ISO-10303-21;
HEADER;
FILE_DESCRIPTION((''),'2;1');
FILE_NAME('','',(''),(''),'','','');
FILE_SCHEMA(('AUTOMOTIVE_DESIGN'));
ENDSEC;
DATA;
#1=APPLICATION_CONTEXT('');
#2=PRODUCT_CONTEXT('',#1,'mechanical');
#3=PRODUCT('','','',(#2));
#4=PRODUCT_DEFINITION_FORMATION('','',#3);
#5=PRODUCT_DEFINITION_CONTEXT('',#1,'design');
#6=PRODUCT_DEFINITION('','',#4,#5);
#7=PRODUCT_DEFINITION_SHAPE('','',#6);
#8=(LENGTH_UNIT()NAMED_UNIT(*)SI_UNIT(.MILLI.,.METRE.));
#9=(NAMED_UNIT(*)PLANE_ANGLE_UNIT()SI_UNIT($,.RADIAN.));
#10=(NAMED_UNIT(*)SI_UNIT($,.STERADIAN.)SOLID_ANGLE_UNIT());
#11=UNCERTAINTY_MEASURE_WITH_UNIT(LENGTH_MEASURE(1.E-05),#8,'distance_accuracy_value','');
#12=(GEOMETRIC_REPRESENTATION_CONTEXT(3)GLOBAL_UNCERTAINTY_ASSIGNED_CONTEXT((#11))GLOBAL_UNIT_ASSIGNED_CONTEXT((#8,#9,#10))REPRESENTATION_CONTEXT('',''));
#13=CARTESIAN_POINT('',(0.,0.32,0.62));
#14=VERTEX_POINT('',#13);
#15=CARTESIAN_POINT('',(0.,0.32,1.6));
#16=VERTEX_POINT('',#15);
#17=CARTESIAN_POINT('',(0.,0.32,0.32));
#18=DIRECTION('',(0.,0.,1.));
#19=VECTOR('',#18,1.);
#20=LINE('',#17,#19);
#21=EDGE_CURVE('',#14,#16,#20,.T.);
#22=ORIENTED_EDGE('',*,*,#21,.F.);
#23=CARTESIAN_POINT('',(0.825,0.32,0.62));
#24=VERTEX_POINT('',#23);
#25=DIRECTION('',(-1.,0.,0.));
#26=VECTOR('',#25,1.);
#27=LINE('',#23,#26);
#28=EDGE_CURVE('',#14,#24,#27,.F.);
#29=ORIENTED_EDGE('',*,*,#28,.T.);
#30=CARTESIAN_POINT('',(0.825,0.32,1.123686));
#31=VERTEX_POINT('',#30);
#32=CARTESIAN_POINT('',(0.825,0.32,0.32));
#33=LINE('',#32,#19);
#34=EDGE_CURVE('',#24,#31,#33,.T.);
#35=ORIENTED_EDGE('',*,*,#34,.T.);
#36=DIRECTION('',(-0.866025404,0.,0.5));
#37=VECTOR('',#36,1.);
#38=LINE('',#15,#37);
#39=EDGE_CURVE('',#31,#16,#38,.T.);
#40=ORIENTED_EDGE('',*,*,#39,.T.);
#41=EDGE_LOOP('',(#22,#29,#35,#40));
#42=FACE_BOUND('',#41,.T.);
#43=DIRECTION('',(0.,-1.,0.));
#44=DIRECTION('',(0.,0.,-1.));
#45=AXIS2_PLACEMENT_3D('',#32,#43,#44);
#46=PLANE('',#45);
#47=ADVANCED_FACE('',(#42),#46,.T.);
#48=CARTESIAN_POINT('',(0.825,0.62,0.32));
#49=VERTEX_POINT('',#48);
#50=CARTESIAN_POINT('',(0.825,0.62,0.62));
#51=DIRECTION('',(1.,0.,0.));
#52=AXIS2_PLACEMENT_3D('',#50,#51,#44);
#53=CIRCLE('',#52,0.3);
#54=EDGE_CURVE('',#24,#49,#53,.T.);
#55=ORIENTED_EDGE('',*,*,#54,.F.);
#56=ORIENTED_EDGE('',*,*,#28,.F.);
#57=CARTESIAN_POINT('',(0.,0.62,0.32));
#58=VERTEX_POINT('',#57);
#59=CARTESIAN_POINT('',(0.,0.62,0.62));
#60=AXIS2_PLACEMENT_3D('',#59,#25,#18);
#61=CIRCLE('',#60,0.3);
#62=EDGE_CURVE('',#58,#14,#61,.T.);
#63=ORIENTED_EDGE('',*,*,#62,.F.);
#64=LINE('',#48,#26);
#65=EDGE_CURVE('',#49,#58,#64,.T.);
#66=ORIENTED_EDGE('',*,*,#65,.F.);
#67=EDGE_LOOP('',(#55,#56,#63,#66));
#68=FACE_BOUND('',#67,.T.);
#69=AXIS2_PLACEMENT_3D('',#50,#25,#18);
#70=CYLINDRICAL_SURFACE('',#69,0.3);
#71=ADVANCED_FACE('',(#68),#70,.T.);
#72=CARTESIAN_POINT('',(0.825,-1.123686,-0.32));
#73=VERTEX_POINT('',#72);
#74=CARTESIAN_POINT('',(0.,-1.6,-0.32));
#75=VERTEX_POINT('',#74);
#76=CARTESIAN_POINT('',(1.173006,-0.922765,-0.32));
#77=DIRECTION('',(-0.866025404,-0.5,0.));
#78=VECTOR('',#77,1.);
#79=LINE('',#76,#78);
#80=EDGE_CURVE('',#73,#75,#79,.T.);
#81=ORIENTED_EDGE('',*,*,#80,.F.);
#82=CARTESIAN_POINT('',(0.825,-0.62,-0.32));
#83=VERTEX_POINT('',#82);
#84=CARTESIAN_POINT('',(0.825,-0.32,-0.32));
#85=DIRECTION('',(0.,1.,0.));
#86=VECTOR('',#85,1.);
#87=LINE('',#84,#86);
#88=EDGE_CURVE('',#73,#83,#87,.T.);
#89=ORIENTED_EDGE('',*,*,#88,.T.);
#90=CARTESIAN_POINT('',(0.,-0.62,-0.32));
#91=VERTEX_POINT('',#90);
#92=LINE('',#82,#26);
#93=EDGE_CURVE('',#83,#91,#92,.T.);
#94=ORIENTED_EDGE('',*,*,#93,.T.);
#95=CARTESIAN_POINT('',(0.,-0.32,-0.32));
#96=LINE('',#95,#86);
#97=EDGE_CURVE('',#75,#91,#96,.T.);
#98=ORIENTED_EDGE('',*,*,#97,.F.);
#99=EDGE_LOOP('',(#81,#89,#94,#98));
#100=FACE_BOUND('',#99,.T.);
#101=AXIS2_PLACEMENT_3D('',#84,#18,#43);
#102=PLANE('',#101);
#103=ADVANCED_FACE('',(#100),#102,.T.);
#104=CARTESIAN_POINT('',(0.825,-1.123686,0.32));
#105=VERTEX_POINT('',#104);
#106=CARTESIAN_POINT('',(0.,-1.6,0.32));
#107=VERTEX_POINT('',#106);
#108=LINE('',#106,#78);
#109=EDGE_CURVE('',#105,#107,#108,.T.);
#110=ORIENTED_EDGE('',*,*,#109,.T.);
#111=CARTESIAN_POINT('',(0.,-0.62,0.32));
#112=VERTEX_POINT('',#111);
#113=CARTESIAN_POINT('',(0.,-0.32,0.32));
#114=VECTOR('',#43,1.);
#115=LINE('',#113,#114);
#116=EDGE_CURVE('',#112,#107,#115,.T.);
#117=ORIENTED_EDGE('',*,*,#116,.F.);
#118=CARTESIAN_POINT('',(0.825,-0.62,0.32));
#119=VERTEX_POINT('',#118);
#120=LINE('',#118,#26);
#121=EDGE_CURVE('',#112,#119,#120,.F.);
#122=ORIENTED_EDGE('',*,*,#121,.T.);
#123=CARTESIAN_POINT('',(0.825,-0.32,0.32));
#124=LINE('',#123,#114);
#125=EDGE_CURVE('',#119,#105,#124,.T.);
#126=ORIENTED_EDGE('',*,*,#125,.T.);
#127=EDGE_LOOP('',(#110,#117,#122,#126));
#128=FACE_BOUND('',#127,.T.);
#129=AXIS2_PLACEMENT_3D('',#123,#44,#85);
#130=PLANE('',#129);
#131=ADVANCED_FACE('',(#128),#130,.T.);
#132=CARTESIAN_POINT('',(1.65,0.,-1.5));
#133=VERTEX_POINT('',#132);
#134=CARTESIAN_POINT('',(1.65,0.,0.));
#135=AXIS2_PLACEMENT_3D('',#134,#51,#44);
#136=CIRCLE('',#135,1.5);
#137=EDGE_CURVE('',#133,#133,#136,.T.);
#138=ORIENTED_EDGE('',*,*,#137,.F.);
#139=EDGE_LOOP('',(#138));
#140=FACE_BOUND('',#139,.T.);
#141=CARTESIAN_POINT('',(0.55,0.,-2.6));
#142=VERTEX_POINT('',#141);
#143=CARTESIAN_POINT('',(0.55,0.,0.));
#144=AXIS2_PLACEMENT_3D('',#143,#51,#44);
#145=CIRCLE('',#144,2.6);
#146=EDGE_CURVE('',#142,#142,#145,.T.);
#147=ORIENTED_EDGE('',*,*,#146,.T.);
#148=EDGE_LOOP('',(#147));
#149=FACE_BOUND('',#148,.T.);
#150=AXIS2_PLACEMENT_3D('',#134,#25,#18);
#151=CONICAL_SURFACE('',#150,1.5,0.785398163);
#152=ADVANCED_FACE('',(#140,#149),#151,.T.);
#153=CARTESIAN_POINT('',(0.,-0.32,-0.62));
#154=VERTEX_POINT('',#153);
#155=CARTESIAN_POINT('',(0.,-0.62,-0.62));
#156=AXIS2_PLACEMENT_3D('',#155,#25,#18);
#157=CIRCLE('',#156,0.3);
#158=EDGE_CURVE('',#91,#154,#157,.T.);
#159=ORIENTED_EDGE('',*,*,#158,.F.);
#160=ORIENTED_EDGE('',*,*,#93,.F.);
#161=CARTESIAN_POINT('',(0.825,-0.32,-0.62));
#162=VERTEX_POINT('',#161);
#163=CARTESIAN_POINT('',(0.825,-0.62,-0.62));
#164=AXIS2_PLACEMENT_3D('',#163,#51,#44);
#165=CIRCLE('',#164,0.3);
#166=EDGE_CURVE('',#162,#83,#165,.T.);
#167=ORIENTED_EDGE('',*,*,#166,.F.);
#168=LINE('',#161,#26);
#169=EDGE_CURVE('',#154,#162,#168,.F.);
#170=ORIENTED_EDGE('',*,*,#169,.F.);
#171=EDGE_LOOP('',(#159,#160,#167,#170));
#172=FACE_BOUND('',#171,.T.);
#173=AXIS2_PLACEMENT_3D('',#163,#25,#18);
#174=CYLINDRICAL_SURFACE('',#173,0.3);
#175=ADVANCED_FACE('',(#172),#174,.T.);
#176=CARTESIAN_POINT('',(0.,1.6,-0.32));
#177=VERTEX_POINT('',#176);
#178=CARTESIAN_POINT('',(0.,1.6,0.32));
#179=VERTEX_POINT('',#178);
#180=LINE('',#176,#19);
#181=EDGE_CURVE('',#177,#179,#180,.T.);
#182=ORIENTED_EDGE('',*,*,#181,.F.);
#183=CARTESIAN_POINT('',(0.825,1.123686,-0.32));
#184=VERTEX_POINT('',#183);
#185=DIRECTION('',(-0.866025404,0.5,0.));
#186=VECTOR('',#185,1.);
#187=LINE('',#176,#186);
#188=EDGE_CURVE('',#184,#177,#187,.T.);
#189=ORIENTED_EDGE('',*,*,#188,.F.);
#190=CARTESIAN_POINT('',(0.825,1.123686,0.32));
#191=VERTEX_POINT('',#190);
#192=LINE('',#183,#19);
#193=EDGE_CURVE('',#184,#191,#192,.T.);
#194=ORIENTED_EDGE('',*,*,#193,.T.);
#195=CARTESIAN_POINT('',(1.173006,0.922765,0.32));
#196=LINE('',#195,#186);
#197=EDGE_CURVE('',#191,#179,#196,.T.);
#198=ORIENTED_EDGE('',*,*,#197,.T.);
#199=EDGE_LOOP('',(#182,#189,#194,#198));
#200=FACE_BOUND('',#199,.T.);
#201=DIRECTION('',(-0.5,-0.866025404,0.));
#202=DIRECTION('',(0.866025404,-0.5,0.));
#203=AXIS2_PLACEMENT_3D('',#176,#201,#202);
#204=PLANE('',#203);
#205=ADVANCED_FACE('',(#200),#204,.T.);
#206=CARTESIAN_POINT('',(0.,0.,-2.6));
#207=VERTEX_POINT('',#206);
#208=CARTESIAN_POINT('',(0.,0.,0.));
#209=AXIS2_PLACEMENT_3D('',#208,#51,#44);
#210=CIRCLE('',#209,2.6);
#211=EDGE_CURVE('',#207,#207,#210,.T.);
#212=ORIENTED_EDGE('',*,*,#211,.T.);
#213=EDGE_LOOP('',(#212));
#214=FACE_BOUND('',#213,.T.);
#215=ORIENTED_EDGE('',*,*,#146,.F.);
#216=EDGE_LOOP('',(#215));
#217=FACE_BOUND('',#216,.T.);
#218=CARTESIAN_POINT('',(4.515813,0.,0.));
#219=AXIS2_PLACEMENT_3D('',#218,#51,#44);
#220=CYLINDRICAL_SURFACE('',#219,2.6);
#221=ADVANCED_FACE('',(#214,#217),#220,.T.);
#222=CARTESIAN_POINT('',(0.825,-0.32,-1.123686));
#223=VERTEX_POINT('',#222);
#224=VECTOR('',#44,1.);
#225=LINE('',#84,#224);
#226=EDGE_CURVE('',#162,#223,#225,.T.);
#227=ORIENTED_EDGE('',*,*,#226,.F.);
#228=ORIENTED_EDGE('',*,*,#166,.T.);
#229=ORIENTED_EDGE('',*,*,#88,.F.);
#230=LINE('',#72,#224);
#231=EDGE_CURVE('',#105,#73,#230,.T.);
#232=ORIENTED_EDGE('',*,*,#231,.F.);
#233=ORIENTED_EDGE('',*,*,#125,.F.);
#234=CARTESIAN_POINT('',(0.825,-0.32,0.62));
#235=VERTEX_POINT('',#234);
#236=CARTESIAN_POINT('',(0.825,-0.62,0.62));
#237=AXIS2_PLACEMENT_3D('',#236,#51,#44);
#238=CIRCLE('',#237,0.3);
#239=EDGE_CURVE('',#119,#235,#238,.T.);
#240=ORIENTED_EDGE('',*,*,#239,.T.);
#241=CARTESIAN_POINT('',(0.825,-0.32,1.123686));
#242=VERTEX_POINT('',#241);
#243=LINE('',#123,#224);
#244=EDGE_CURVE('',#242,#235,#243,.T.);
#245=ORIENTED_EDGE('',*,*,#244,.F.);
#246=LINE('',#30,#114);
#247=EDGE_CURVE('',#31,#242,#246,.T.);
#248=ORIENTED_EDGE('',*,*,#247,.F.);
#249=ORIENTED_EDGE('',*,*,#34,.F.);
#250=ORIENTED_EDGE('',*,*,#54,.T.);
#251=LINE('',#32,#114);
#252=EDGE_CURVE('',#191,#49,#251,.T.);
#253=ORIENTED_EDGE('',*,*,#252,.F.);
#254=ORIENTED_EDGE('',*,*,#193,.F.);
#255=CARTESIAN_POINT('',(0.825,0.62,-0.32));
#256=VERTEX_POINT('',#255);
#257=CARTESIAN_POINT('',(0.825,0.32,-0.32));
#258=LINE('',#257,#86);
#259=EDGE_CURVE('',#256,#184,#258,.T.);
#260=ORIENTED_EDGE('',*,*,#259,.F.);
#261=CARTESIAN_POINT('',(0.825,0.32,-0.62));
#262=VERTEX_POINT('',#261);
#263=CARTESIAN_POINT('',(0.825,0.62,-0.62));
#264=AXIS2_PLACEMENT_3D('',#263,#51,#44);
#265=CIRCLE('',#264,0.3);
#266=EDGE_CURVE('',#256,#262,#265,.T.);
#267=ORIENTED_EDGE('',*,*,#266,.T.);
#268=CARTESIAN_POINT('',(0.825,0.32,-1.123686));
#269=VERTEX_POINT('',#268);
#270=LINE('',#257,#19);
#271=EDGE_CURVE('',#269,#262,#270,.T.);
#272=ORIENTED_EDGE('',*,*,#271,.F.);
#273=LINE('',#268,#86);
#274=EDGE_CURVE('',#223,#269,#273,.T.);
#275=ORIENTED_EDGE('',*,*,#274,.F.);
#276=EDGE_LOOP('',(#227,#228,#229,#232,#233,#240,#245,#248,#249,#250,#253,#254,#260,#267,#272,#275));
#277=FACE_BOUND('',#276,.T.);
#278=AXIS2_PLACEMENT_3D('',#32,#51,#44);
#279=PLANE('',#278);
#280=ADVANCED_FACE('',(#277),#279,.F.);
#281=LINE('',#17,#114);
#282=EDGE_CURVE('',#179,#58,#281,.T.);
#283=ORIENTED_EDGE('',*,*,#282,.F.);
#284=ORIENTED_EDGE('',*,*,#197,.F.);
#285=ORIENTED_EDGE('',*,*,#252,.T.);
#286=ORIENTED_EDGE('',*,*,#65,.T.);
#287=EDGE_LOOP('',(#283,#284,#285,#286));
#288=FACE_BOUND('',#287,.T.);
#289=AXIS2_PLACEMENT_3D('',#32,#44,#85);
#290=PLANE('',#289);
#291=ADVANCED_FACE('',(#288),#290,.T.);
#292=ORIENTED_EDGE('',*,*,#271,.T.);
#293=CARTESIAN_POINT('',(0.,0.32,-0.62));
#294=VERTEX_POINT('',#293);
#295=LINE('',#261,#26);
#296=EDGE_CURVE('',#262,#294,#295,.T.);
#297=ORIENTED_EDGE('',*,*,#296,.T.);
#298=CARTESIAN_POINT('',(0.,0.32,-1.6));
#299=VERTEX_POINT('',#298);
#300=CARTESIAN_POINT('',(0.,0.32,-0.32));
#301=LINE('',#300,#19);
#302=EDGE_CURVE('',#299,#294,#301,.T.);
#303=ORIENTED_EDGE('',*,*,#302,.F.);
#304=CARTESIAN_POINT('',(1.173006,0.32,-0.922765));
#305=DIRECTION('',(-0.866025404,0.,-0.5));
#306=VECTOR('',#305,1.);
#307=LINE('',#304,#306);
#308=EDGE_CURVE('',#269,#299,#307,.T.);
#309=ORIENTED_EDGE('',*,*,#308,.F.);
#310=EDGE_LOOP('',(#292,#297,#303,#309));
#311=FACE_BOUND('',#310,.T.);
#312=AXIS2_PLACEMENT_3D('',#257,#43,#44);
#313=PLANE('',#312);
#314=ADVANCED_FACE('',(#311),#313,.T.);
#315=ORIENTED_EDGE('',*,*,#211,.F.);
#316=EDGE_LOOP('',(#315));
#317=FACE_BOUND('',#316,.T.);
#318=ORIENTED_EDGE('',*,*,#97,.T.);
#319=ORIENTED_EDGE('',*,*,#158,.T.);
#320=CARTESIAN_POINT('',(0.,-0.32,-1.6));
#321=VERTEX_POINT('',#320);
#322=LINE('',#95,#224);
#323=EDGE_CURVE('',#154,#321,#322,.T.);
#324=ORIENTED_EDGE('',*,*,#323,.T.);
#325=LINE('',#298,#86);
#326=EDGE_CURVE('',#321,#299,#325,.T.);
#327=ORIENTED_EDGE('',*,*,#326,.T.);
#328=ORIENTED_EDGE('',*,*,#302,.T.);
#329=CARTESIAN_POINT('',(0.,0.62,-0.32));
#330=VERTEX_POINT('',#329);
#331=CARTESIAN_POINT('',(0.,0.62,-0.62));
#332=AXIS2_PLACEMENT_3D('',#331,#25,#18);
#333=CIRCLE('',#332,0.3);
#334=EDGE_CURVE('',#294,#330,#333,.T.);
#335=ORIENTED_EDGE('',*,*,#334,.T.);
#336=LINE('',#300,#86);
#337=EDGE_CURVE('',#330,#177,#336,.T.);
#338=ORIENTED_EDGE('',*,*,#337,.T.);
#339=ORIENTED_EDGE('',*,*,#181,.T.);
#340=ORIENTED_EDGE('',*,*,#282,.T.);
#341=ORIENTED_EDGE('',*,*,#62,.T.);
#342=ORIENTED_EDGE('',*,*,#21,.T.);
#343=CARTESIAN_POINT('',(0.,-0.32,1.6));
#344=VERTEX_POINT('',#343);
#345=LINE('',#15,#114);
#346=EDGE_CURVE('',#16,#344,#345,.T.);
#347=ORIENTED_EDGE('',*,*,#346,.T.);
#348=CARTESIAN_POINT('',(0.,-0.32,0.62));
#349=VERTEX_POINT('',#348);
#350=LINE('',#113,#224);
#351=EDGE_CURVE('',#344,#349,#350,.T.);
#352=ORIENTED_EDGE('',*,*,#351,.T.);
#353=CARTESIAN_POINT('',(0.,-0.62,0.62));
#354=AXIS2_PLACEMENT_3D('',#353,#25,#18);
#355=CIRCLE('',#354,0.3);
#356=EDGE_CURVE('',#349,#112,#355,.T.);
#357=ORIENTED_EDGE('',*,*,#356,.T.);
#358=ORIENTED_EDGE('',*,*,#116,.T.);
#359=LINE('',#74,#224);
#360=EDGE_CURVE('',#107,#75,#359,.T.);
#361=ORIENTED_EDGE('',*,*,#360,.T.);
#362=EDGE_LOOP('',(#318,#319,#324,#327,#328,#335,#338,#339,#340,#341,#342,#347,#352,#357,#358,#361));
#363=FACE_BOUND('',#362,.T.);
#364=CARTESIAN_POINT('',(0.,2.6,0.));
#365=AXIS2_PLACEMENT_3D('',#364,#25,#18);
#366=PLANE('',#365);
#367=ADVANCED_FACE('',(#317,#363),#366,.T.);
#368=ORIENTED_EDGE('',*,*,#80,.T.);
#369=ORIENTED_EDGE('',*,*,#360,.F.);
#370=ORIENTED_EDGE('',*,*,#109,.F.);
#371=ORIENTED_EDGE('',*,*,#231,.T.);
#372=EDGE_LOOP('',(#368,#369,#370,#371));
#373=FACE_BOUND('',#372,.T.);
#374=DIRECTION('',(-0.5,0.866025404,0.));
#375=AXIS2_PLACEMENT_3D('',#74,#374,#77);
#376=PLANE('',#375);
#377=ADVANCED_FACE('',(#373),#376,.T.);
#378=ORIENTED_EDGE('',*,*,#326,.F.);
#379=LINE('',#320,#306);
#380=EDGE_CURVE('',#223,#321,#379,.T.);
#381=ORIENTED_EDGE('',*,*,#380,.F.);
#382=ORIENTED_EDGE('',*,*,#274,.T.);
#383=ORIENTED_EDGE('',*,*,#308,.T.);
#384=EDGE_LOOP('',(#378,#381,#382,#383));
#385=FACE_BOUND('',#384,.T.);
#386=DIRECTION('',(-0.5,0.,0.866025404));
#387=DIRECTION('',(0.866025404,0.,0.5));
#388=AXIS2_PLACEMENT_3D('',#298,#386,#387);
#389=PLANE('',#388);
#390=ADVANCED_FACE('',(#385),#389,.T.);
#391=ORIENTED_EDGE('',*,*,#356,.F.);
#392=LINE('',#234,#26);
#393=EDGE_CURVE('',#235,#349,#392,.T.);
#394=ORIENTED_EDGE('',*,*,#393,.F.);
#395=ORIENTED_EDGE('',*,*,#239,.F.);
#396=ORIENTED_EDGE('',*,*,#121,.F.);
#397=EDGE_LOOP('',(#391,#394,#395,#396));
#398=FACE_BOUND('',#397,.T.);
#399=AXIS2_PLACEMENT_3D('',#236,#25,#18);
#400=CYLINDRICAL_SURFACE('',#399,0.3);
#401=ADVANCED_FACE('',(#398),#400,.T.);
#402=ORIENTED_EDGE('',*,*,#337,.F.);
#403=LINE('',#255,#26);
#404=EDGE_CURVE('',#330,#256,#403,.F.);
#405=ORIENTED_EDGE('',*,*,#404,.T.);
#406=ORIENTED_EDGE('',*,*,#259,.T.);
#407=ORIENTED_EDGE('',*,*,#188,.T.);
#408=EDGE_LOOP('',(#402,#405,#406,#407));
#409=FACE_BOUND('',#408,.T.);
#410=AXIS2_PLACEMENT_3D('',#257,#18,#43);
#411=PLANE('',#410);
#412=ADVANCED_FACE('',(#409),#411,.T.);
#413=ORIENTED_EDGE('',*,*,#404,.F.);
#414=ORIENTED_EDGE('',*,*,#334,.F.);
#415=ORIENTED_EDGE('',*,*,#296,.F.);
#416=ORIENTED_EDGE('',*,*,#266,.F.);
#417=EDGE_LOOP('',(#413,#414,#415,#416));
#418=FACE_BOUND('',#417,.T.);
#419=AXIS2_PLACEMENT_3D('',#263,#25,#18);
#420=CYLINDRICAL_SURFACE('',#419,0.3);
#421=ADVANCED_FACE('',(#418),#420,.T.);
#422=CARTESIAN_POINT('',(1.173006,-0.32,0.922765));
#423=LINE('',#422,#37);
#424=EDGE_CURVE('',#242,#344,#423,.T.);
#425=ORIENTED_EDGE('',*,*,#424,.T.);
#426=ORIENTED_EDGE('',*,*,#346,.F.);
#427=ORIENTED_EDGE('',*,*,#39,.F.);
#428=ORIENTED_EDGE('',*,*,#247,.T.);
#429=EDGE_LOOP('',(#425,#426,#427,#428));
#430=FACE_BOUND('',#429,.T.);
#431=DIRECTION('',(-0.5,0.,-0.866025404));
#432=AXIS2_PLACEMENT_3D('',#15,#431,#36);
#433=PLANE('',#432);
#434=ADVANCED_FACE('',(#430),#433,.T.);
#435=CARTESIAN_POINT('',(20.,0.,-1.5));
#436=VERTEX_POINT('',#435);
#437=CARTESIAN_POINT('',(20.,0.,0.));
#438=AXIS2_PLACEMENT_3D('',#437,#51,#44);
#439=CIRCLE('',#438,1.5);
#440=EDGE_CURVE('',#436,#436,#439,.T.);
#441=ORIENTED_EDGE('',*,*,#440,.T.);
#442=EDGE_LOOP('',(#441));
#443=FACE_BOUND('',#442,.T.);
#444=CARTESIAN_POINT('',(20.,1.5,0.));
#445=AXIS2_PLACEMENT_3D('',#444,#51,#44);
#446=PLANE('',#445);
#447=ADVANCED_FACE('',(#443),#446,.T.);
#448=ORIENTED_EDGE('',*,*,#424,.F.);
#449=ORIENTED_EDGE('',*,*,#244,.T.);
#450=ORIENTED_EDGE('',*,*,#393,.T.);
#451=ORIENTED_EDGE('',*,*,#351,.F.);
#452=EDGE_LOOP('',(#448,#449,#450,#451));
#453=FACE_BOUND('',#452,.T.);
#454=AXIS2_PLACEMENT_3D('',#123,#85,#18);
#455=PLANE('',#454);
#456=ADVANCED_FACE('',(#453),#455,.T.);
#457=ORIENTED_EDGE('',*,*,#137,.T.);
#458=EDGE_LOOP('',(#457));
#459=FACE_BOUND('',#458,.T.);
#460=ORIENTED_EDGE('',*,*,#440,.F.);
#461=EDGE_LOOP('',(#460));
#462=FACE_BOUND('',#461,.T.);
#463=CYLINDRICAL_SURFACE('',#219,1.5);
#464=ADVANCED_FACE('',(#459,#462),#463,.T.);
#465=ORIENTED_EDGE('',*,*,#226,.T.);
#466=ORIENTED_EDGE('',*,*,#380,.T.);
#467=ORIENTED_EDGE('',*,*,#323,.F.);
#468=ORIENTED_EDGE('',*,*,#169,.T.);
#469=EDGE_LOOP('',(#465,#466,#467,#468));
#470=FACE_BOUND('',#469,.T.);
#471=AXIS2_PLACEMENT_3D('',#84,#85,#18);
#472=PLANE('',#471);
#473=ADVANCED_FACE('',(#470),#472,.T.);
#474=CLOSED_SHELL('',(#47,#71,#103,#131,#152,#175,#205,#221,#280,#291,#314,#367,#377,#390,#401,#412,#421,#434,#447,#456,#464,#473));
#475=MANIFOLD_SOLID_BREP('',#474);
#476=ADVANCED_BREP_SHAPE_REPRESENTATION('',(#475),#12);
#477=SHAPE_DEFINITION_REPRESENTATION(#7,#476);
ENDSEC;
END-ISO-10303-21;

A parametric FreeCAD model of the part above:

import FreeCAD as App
import Part
import Sketcher
from FreeCAD import Vector
Q = App.Units.Quantity


def edges_at(feature, points):
    """Names of the edges that pass closest to the given points."""
    edges = feature.Shape.Edges
    near = lambda p: min(range(len(edges)), key=lambda i: edges[i].distToShape(Part.Vertex(*p))[0])
    return sorted({f"Edge{near(p) + 1}" for p in points})


def faces_at(feature, points):
    """Names of the faces that lie closest to the given points."""
    faces = feature.Shape.Faces
    near = lambda p: min(range(len(faces)), key=lambda i: faces[i].distToShape(Part.Vertex(*p))[0])
    return sorted({f"Face{near(p) + 1}" for p in points})


def add_polygon(sketch, points):
    """Adds a closed chain of lines whose ends are joined by coincident constraints."""
    first, n = sketch.GeometryCount, len(points)
    for a, b in zip(points, points[1:] + points[:1]):
        sketch.addGeometry(Part.LineSegment(App.Vector(*a, 0), App.Vector(*b, 0)), False)
    for i in range(n):
        sketch.addConstraint(Sketcher.Constraint("Coincident", first + i, 2, first + (i + 1) % n, 1))

doc = App.newDocument("Part")
body = doc.addObject("PartDesign::Body", "Body")

sketch1 = body.newObject("Sketcher::SketchObject", "Sketch")
sketch1.AttachmentSupport = (doc.getObject("XY_Plane"), [""])
sketch1.MapMode = "FlatFace"
add_polygon(sketch1, [(20, 1.5), (1.65, 1.5), (0.55, 2.6), (0, 2.6), (0, 0), (20, 0)])
sketch1.addConstraint(Sketcher.Constraint("Horizontal", 0))
sketch1.addConstraint(Sketcher.Constraint("Horizontal", 2))
sketch1.addConstraint(Sketcher.Constraint("Vertical", 3))
sketch1.addConstraint(Sketcher.Constraint("Horizontal", 4))
sketch1.addConstraint(Sketcher.Constraint("Vertical", 5))
sketch1.addConstraint(Sketcher.Constraint("Coincident", 3, 2, -1, 1))
sketch1.addConstraint(Sketcher.Constraint("DistanceX", 4, 1, 4, 2, 20.0))
sketch1.addConstraint(Sketcher.Constraint("Angle", 1, Q("135 deg")))
sketch1.addConstraint(Sketcher.Constraint("DistanceY", 3, 2, 3, 1, 2.6))
sketch1.addConstraint(Sketcher.Constraint("DistanceY", 5, 1, 5, 2, 1.5))
sketch1.addConstraint(Sketcher.Constraint("DistanceX", 0, 2, 0, 1, 18.35))
revolution = body.newObject("PartDesign::Revolution", "Revolution")
revolution.Profile = sketch1
revolution.ReferenceAxis = (sketch1, ["H_Axis"])
revolution.Angle = 360

sketch2 = body.newObject("Sketcher::SketchObject", "Sketch001")
sketch2.AttachmentSupport = (doc.getObject("YZ_Plane"), [""])
sketch2.MapMode = "FlatFace"
add_polygon(sketch2, [(0.32, -0.32), (1.6, -0.32), (1.6, 0.32), (0.32, 0.32), (0.32, 1.6), (-0.32, 1.6), (-0.32, 0.32), (-1.6, 0.32), (-1.6, -0.32), (-0.32, -0.32), (-0.32, -1.6), (0.32, -1.6)])
sketch2.addConstraint(Sketcher.Constraint("Horizontal", 0))
sketch2.addConstraint(Sketcher.Constraint("Vertical", 1))
sketch2.addConstraint(Sketcher.Constraint("Horizontal", 2))
sketch2.addConstraint(Sketcher.Constraint("Vertical", 3))
sketch2.addConstraint(Sketcher.Constraint("Horizontal", 4))
sketch2.addConstraint(Sketcher.Constraint("Vertical", 5))
sketch2.addConstraint(Sketcher.Constraint("Horizontal", 6))
sketch2.addConstraint(Sketcher.Constraint("Vertical", 7))
sketch2.addConstraint(Sketcher.Constraint("Horizontal", 8))
sketch2.addConstraint(Sketcher.Constraint("Vertical", 9))
sketch2.addConstraint(Sketcher.Constraint("Horizontal", 10))
sketch2.addConstraint(Sketcher.Constraint("Vertical", 11))
sketch2.addConstraint(Sketcher.Constraint("Symmetric", 0, 2, 6, 2, -1, 1))
sketch2.addConstraint(Sketcher.Constraint("Symmetric", 2, 2, 8, 2, -1, 1))
sketch2.addConstraint(Sketcher.Constraint("Symmetric", 4, 2, 10, 2, -1, 1))
sketch2.addConstraint(Sketcher.Constraint("Symmetric", 2, 2, 5, 2, -2))
sketch2.addConstraint(Sketcher.Constraint("Equal", 10, 1))
sketch2.addConstraint(Sketcher.Constraint("Equal", 8, 3))
sketch2.addConstraint(Sketcher.Constraint("DistanceX", 0, 1, 0, 2, 1.28))
sketch2.addConstraint(Sketcher.Constraint("DistanceX", 4, 2, 4, 1, 0.64))
pocket1 = body.newObject("PartDesign::Pocket", "Pocket")
pocket1.Profile = sketch2
pocket1.Length = 0.825
pocket1.Reversed = True
doc.recompute()

draft = body.newObject("PartDesign::Draft", "Draft")
draft.Base = (pocket1, faces_at(pocket1, [
    (0.412, 1.6, 0),
    (0.412, 0, 1.6),
    (0.412, -1.6, 0),
    (0.412, 0, -1.6),
]))
draft.NeutralPlane = (doc.getObject("YZ_Plane"), [""])
draft.Angle = 30
draft.Reversed = True
doc.recompute()

fillet = body.newObject("PartDesign::Fillet", "Fillet")
fillet.Base = (draft, edges_at(draft, [
    (0.412, 0.32, 0.32),
    (0.412, -0.32, 0.32),
    (0.412, -0.32, -0.32),
    (0.412, 0.32, -0.32),
]))
fillet.Radius = 0.3

doc.recompute()
